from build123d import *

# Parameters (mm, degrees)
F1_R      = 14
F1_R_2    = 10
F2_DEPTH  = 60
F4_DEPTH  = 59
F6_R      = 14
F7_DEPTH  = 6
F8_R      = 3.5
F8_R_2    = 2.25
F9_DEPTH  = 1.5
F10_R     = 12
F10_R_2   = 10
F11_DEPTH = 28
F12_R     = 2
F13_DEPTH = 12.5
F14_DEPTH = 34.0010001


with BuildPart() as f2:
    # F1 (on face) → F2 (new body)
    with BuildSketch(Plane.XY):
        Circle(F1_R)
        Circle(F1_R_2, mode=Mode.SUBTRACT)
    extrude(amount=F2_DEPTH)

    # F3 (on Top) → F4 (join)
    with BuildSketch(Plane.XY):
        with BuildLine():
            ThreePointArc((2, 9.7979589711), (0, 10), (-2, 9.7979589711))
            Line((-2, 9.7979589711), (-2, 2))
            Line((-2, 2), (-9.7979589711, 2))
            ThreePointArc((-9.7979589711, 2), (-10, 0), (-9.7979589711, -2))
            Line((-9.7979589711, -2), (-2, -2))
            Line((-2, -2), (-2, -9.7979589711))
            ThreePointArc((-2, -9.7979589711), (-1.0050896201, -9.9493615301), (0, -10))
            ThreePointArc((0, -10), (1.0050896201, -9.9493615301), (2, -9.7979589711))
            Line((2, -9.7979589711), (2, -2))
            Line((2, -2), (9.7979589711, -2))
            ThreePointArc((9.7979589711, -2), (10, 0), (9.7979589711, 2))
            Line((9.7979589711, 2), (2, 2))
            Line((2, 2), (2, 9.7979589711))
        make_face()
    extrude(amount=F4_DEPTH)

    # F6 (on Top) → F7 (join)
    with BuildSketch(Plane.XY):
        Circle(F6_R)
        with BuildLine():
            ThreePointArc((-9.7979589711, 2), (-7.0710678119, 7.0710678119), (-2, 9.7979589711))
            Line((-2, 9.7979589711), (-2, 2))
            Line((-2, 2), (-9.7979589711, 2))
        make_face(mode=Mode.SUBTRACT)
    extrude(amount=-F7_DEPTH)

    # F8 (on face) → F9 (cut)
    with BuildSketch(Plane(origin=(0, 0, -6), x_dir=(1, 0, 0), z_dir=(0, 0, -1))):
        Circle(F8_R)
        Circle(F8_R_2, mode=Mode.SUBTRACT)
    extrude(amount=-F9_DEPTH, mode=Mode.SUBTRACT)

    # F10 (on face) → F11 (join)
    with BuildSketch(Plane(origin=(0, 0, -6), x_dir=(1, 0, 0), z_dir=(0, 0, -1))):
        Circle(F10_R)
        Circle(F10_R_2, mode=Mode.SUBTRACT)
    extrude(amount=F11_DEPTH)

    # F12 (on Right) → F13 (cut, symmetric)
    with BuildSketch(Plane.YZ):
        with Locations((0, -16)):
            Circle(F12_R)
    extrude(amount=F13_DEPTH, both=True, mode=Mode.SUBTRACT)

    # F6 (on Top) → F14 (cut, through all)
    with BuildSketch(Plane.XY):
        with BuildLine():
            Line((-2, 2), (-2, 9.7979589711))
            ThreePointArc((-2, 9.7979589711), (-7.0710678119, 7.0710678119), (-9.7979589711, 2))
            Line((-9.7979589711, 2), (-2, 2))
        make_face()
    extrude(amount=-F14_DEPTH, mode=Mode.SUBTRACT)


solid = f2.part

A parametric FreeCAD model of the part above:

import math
import FreeCAD as App
import Part
import Sketcher
from FreeCAD import Vector
Q = App.Units.Quantity

doc = App.newDocument("Part")
body = doc.addObject("PartDesign::Body", "Body")

# Sketch on XY plane
sketch1 = body.newObject("Sketcher::SketchObject", "Sketch")
sketch1.AttachmentSupport = (doc.getObject("XY_Plane"), [""])
sketch1.MapMode = "FlatFace"
sketch1.addGeometry([
    Part.Circle(Vector(0, 0, 0), Vector(0, 0, 1), 14),
    Part.Circle(Vector(0, 0, 0), Vector(0, 0, 1), 10),
], False)
sketch1.addConstraint([
    Sketcher.Constraint("Coincident", 0, 3, -1, 1),
    Sketcher.Constraint("Coincident", 1, 3, -1, 1),
    Sketcher.Constraint("Diameter", 0, Q("28 mm")),
    Sketcher.Constraint("Diameter", 1, Q("20 mm")),
])
pad1 = body.newObject("PartDesign::Pad", "Pad")
pad1.Profile = sketch1
pad1.Length = 60

# Sketch on XY plane
sketch2 = body.newObject("Sketcher::SketchObject", "Sketch001")
sketch2.AttachmentSupport = (doc.getObject("XY_Plane"), [""])
sketch2.MapMode = "FlatFace"
sketch2.addGeometry([
    Part.ArcOfCircle(Part.Circle(Vector(0, 0, 0), Vector(0, 0, 1), 10), math.radians(78.463041), math.radians(101.536959)),  # 0
    Part.LineSegment(Vector(-2, 9.797959, 0), Vector(-2, 2, 0)),  # 1
    Part.LineSegment(Vector(-2, 2, 0), Vector(-9.797959, 2, 0)),  # 2
    Part.ArcOfCircle(Part.Circle(Vector(0, 0, 0), Vector(0, 0, 1), 10), math.radians(168.463041), math.radians(191.536959)),  # 3
    Part.LineSegment(Vector(-9.797959, -2, 0), Vector(-2, -2, 0)),  # 4
    Part.LineSegment(Vector(-2, -2, 0), Vector(-2, -9.797959, 0)),  # 5
    Part.ArcOfCircle(Part.Circle(Vector(0, 0, 0), Vector(0, 0, 1), 10), math.radians(-101.536959), math.radians(-90)),  # 6
    Part.ArcOfCircle(Part.Circle(Vector(0, 0, 0), Vector(0, 0, 1), 10), math.radians(-90), math.radians(-78.463041)),  # 7
    Part.LineSegment(Vector(2, -9.797959, 0), Vector(2, -2, 0)),  # 8
    Part.LineSegment(Vector(2, -2, 0), Vector(9.797959, -2, 0)),  # 9
    Part.ArcOfCircle(Part.Circle(Vector(0, 0, 0), Vector(0, 0, 1), 10), math.radians(-11.536959), math.radians(11.536959)),  # 10
    Part.LineSegment(Vector(9.797959, 2, 0), Vector(2, 2, 0)),  # 11
    Part.LineSegment(Vector(2, 2, 0), Vector(2, 9.797959, 0)),  # 12
], False)
sketch2.addConstraint([
    Sketcher.Constraint("Coincident", 0, 2, 1, 1),
    Sketcher.Constraint("Coincident", 1, 2, 2, 1),
    Sketcher.Constraint("Coincident", 2, 2, 3, 1),
    Sketcher.Constraint("Coincident", 3, 2, 4, 1),
    Sketcher.Constraint("Coincident", 4, 2, 5, 1),
    Sketcher.Constraint("Coincident", 5, 2, 6, 1),
    Sketcher.Constraint("Tangent", 6, 2, 7, 1),
    Sketcher.Constraint("Coincident", 7, 2, 8, 1),
    Sketcher.Constraint("Coincident", 8, 2, 9, 1),
    Sketcher.Constraint("Coincident", 9, 2, 10, 1),
    Sketcher.Constraint("Coincident", 10, 2, 11, 1),
    Sketcher.Constraint("Coincident", 11, 2, 12, 1),
    Sketcher.Constraint("Coincident", 12, 2, 0, 1),
    Sketcher.Constraint("Vertical", 1),
    Sketcher.Constraint("Horizontal", 2),
    Sketcher.Constraint("Horizontal", 4),
    Sketcher.Constraint("Vertical", 5),
    Sketcher.Constraint("Vertical", 8),
    Sketcher.Constraint("Horizontal", 9),
    Sketcher.Constraint("Horizontal", 11),
    Sketcher.Constraint("Vertical", 12),
    Sketcher.Constraint("Coincident", 0, 3, -1, 1),
    Sketcher.Constraint("Coincident", 3, 3, -1, 1),
    Sketcher.Constraint("Coincident", 6, 3, -1, 1),
    Sketcher.Constraint("Coincident", 10, 3, -1, 1),
    Sketcher.Constraint("Equal", 0, 3),
    Sketcher.Constraint("Equal", 3, 6),
    Sketcher.Constraint("Equal", 6, 7),
    Sketcher.Constraint("Equal", 7, 10),
    Sketcher.Constraint("Symmetric", 1, 2, 8, 2, -1, 1),
    Sketcher.Constraint("Symmetric", 4, 2, 11, 2, -1, 1),
    Sketcher.Constraint("Symmetric", 4, 2, 8, 2, -2),
    Sketcher.Constraint("PointOnObject", 6, 2, -2),
    Sketcher.Constraint("Equal", 11, 1),
    Sketcher.Constraint("Radius", 0, Q("10 mm")),
    Sketcher.Constraint("DistanceX", 0, 2, -1, 1, Q("2 mm")),
])
pad2 = body.newObject("PartDesign::Pad", "Pad001")
pad2.Profile = sketch2
pad2.Length = 59

# Sketch on XY plane
sketch3 = body.newObject("Sketcher::SketchObject", "Sketch002")
sketch3.AttachmentSupport = (doc.getObject("XY_Plane"), [""])
sketch3.MapMode = "FlatFace"
sketch3.addGeometry([
    Part.Circle(Vector(0, 0, 0), Vector(0, 0, 1), 14),
    Part.LineSegment(Vector(-2, 2, 0), Vector(-9.797959, 2, 0)),
    Part.ArcOfCircle(Part.Circle(Vector(0, 0, 0), Vector(0, 0, 1), 10), math.radians(101.536959), math.radians(168.463041)),
    Part.LineSegment(Vector(-2, 9.797959, 0), Vector(-2, 2, 0)),
], False)
sketch3.addConstraint([
    Sketcher.Constraint("Coincident", 1, 2, 2, 2),
    Sketcher.Constraint("Coincident", 2, 1, 3, 1),
    Sketcher.Constraint("Coincident", 3, 2, 1, 1),
    Sketcher.Constraint("Horizontal", 1),
    Sketcher.Constraint("Vertical", 3),
    Sketcher.Constraint("Coincident", 0, 3, -1, 1),
    Sketcher.Constraint("Coincident", 2, 3, -1, 1),
    Sketcher.Constraint("Equal", 1, 3),
    Sketcher.Constraint("Diameter", 0, Q("28 mm")),
    Sketcher.Constraint("Radius", 2, Q("10 mm")),
    Sketcher.Constraint("DistanceY", -1, 1, 1, 2, Q("2 mm")),
])
pad3 = body.newObject("PartDesign::Pad", "Pad002")
pad3.Profile = sketch3
pad3.Length = 6
pad3.Reversed = True

# Sketch on XY plane
sketch4 = body.newObject("Sketcher::SketchObject", "Sketch003")
sketch4.AttachmentSupport = (doc.getObject("XY_Plane"), [""])
sketch4.MapMode = "FlatFace"
sketch4.AttachmentOffset = App.Placement(Vector(0, 0, -6), App.Rotation())
sketch4.addGeometry([
    Part.Circle(Vector(0, 0, 0), Vector(0, 0, 1), 3.5),
    Part.Circle(Vector(0, 0, 0), Vector(0, 0, 1), 2.25),
], False)
sketch4.addConstraint([
    Sketcher.Constraint("Coincident", 0, 3, -1, 1),
    Sketcher.Constraint("Coincident", 1, 3, -1, 1),
    Sketcher.Constraint("Diameter", 0, Q("7 mm")),
    Sketcher.Constraint("Diameter", 1, Q("4.5 mm")),
])
pocket1 = body.newObject("PartDesign::Pocket", "Pocket")
pocket1.Profile = sketch4
pocket1.Length = 1.5
pocket1.Reversed = True

# Sketch on XY plane
sketch5 = body.newObject("Sketcher::SketchObject", "Sketch004")
sketch5.AttachmentSupport = (doc.getObject("XY_Plane"), [""])
sketch5.MapMode = "FlatFace"
sketch5.AttachmentOffset = App.Placement(Vector(0, 0, -6), App.Rotation())
sketch5.addGeometry([
    Part.Circle(Vector(0, 0, 0), Vector(0, 0, 1), 12),
    Part.Circle(Vector(0, 0, 0), Vector(0, 0, 1), 10),
], False)
sketch5.addConstraint([
    Sketcher.Constraint("Coincident", 0, 3, -1, 1),
    Sketcher.Constraint("Coincident", 1, 3, -1, 1),
    Sketcher.Constraint("Diameter", 0, Q("24 mm")),
    Sketcher.Constraint("Diameter", 1, Q("20 mm")),
])
pad4 = body.newObject("PartDesign::Pad", "Pad003")
pad4.Profile = sketch5
pad4.Length = 28
pad4.Reversed = True

# Sketch on YZ plane
sketch6 = body.newObject("Sketcher::SketchObject", "Sketch005")
sketch6.AttachmentSupport = (doc.getObject("YZ_Plane"), [""])
sketch6.MapMode = "FlatFace"
sketch6.addGeometry(Part.Circle(Vector(0, -16, 0), Vector(0, 0, 1), 2), False)
sketch6.addConstraint([
    Sketcher.Constraint("PointOnObject", 0, 3, -2),
    Sketcher.Constraint("Diameter", 0, Q("4 mm")),
    Sketcher.Constraint("DistanceY", 0, 3, -1, 1, Q("16 mm")),
])
pocket2 = body.newObject("PartDesign::Pocket", "Pocket001")
pocket2.Profile = sketch6
pocket2.Length = 25
pocket2.Midplane = True

# Sketch on XY plane
sketch7 = body.newObject("Sketcher::SketchObject", "Sketch006")
sketch7.AttachmentSupport = (doc.getObject("XY_Plane"), [""])
sketch7.MapMode = "FlatFace"
sketch7.addGeometry([
    Part.LineSegment(Vector(-2, 2, 0), Vector(-2, 9.797959, 0)),
    Part.ArcOfCircle(Part.Circle(Vector(0, 0, 0), Vector(0, 0, 1), 10), math.radians(101.536959), math.radians(168.463041)),
    Part.LineSegment(Vector(-9.797959, 2, 0), Vector(-2, 2, 0)),
], False)
sketch7.addConstraint([
    Sketcher.Constraint("Coincident", 0, 2, 1, 1),
    Sketcher.Constraint("Coincident", 1, 2, 2, 1),
    Sketcher.Constraint("Coincident", 2, 2, 0, 1),
    Sketcher.Constraint("Vertical", 0),
    Sketcher.Constraint("Horizontal", 2),
    Sketcher.Constraint("Coincident", 1, 3, -1, 1),
    Sketcher.Constraint("Equal", 2, 0),
    Sketcher.Constraint("Radius", 1, Q("10 mm")),
    Sketcher.Constraint("DistanceX", 0, 2, -1, 1, Q("2 mm")),
])
pocket3 = body.newObject("PartDesign::Pocket", "Pocket002")
pocket3.Profile = sketch7
pocket3.Type = "ThroughAll"

doc.recompute()
